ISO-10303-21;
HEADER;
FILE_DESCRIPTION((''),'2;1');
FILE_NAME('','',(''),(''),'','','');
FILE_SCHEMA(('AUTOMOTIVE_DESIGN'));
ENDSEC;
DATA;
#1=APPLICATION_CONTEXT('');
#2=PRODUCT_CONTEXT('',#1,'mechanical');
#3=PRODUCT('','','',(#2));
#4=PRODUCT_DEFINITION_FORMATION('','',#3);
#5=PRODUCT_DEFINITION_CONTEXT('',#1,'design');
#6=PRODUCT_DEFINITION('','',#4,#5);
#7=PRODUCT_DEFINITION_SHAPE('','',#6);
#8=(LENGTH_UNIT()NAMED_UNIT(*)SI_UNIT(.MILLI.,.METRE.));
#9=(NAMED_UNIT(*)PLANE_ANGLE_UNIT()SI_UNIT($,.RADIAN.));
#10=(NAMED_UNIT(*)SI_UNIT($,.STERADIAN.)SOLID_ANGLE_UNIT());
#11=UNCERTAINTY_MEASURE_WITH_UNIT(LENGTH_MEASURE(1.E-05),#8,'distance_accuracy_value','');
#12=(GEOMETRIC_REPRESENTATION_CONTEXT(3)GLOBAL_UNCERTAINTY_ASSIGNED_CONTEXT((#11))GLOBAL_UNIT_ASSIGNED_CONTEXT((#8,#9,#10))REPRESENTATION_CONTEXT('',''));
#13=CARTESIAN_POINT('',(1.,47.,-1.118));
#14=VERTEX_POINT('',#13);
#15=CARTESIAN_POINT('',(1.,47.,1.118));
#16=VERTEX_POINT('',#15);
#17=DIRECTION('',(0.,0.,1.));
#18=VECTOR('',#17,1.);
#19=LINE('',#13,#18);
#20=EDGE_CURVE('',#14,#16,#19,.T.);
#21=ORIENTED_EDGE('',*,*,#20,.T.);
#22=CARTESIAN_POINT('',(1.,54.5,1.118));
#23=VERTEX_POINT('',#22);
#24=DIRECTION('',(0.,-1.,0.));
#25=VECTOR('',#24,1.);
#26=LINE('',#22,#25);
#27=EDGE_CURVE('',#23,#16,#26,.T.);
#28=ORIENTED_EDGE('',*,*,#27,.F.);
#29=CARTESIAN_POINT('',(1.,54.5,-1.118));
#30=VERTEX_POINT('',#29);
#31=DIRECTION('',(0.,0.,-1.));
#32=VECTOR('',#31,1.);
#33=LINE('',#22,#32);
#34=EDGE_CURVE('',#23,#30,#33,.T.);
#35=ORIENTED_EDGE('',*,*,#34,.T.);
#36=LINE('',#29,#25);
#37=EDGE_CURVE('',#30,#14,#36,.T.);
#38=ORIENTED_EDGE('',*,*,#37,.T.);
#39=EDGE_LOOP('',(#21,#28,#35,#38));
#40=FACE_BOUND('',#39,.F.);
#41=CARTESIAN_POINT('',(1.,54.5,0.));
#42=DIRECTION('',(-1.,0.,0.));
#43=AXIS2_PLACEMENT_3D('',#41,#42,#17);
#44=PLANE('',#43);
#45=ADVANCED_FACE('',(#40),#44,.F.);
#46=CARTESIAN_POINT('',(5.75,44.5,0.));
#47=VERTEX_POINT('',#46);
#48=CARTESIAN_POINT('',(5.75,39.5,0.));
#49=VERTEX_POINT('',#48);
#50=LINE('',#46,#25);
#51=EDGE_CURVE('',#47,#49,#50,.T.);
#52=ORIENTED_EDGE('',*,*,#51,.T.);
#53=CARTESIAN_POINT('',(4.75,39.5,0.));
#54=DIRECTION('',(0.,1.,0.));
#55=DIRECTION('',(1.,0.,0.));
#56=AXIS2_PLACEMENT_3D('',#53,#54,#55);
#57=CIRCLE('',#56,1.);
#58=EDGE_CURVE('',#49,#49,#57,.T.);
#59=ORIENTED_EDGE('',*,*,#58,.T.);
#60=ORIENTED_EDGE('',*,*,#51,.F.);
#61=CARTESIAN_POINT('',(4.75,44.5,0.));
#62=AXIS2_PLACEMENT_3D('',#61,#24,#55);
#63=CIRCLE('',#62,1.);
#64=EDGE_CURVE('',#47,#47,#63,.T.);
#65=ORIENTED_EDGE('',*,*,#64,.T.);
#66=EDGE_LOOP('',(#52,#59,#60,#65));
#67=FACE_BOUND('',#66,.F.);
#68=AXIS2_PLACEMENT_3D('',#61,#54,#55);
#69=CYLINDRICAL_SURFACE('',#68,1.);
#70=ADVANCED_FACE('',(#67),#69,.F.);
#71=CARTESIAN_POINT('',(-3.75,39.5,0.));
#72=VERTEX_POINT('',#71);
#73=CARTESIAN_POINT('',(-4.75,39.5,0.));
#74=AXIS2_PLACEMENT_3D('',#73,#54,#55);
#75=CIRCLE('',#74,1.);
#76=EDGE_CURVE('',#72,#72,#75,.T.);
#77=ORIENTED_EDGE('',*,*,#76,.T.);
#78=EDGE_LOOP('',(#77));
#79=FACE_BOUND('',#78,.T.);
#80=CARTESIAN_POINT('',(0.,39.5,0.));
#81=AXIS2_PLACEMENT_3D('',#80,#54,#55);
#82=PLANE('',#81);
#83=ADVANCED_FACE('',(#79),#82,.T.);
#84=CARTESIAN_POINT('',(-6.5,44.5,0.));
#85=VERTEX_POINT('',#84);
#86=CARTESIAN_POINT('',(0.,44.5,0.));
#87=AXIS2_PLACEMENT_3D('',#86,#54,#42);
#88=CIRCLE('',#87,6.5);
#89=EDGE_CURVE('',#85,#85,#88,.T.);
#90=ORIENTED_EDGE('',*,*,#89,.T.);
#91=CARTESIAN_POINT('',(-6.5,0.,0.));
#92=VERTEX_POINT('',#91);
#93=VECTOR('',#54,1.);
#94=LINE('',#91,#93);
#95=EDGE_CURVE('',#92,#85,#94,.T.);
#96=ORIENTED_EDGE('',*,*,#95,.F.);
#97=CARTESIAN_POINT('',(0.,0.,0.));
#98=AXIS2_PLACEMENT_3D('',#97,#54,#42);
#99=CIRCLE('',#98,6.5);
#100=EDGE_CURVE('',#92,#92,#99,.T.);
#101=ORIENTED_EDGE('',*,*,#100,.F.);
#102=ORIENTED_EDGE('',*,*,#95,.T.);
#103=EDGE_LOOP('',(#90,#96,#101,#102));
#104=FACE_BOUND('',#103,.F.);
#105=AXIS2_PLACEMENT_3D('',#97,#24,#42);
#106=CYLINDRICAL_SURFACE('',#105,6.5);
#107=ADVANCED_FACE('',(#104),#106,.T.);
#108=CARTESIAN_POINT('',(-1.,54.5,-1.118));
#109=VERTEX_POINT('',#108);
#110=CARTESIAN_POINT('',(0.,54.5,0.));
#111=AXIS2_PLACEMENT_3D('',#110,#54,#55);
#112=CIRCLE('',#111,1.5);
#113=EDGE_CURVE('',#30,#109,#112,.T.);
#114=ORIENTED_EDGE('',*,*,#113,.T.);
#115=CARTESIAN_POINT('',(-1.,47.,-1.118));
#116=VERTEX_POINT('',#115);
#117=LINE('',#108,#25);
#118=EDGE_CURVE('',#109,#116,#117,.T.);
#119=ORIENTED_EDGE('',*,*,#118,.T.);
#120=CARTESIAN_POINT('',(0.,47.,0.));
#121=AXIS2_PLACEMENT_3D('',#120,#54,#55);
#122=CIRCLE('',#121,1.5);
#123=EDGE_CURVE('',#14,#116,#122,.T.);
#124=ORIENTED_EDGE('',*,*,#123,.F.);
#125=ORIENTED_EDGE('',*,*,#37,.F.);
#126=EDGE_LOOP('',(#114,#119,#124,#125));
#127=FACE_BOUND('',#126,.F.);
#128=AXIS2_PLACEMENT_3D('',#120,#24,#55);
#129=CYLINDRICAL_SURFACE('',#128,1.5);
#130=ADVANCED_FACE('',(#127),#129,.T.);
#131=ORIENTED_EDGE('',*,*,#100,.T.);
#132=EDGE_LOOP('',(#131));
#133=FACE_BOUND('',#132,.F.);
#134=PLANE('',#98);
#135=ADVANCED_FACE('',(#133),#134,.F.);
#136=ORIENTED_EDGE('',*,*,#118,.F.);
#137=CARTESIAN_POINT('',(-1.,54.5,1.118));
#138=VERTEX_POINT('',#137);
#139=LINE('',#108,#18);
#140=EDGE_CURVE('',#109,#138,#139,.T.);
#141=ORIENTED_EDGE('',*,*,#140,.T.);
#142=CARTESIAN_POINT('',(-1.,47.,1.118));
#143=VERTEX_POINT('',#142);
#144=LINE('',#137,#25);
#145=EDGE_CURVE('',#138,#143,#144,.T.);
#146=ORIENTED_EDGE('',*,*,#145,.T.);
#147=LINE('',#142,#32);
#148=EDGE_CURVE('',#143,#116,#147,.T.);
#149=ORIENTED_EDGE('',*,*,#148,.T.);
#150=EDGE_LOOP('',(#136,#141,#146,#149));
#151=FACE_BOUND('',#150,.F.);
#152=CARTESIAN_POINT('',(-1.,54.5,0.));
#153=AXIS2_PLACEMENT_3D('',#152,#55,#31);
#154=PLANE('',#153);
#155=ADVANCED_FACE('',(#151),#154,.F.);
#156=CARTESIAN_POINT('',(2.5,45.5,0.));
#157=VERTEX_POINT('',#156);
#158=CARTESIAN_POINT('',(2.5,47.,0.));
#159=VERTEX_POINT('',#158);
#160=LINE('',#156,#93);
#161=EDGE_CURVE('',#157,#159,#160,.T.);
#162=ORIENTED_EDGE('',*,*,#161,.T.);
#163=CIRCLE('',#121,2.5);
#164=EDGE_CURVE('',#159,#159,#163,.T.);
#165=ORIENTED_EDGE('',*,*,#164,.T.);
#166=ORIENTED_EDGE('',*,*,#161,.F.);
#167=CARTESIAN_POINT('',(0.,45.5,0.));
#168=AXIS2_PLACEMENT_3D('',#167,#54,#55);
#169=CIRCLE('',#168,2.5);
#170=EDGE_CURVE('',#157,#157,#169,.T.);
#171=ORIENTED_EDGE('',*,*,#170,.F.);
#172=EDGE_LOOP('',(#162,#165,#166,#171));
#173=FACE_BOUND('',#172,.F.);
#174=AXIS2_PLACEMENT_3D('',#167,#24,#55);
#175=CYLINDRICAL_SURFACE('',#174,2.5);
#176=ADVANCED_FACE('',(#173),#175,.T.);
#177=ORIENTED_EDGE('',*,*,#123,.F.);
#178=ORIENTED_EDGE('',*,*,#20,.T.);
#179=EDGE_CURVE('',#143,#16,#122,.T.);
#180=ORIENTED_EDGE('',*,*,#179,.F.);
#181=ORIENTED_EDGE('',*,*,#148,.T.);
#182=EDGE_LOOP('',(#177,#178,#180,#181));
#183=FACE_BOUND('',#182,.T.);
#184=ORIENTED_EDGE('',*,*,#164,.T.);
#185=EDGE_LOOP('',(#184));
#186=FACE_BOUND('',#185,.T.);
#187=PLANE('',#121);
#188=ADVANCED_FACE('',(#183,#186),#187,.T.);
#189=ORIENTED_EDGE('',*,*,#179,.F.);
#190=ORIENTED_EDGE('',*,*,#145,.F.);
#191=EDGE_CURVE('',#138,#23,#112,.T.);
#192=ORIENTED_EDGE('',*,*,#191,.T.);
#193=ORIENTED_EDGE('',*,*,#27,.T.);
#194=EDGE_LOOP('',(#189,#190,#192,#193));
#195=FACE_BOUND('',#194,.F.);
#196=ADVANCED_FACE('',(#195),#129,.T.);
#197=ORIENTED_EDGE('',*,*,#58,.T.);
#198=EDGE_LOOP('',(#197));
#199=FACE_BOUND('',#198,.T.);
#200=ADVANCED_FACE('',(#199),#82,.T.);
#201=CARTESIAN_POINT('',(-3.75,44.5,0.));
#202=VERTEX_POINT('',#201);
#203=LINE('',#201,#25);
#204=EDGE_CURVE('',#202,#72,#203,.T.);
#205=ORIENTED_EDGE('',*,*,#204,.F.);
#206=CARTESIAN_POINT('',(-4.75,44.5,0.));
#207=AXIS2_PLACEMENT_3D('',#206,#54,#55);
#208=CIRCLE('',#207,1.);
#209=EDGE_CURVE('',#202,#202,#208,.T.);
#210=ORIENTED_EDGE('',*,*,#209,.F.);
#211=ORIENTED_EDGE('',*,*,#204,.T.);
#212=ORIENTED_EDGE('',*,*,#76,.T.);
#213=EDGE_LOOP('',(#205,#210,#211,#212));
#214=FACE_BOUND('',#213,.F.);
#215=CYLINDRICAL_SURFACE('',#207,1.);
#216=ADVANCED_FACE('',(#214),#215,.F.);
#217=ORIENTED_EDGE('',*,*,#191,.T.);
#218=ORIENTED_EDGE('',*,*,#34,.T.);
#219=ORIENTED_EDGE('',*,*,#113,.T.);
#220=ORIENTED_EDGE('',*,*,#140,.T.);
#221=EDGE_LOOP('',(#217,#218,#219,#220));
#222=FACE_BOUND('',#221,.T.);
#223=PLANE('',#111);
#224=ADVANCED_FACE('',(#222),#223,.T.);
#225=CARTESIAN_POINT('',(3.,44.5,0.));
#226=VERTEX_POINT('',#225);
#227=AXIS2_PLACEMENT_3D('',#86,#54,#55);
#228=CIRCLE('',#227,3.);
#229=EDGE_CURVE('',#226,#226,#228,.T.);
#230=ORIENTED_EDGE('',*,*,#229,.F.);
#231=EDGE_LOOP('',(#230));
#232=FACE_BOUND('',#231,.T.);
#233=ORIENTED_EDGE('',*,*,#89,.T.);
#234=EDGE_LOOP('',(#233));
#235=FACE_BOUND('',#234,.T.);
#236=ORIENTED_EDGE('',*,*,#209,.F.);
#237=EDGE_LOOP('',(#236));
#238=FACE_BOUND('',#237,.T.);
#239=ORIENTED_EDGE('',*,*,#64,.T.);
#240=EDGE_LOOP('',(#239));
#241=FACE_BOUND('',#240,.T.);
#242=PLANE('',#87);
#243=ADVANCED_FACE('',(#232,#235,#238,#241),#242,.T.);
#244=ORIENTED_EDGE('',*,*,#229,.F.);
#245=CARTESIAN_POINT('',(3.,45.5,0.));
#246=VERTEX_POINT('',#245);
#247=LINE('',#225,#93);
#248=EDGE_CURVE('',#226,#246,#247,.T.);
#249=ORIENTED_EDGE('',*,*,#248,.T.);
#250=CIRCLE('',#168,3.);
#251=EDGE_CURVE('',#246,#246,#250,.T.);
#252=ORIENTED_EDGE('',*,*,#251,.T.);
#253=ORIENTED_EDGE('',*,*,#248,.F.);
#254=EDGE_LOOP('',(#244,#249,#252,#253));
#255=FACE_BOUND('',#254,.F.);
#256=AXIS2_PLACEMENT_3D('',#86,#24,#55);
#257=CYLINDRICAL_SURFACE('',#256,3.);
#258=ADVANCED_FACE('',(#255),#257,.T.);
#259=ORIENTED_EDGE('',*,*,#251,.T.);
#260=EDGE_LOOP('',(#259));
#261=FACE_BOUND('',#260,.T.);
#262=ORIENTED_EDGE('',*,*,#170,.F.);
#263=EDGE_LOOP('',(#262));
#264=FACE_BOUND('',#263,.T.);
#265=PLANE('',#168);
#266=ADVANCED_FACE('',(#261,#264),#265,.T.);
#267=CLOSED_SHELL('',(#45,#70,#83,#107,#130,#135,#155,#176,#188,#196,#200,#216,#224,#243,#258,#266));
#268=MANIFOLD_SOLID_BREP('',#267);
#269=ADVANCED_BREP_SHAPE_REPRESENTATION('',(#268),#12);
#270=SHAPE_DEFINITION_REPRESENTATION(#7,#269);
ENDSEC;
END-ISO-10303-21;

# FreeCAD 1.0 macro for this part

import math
import FreeCAD as App
import Part
import Sketcher

doc = App.newDocument("Part")
body = doc.addObject("PartDesign::Body", "Body")

sketch1 = body.newObject("Sketcher::SketchObject", "Sketch")
sketch1.AttachmentSupport = (doc.getObject("XZ_Plane"), [""])
sketch1.MapMode = "FlatFace"
sketch1.addGeometry(Part.Circle(App.Vector(0, 0, 0), App.Vector(0, 0, 1), 6), False)
sketch1.addConstraint([
    Sketcher.Constraint("Coincident", 0, 3, -1, 1),
    Sketcher.Constraint("Diameter", 0, 13.0),
])
pad1 = body.newObject("PartDesign::Pad", "Pad")
pad1.Profile = sketch1
pad1.Length = 44.5
pad1.Reversed = True

sketch2 = body.newObject("Sketcher::SketchObject", "Sketch001")
sketch2.AttachmentSupport = (doc.getObject("XZ_Plane"), [""])
sketch2.MapMode = "FlatFace"
sketch2.AttachmentOffset = App.Placement(App.Vector(0, 0, -44.5), App.Rotation())
sketch2.addGeometry(Part.Circle(App.Vector(0, 0, 0), App.Vector(0, 0, 1), 3), False)
sketch2.addConstraint([
    Sketcher.Constraint("Coincident", 0, 3, -1, 1),
    Sketcher.Constraint("Diameter", 0, 6.0),
])
pad2 = body.newObject("PartDesign::Pad", "Pad001")
pad2.Profile = sketch2
pad2.Length = 1
pad2.Reversed = True

sketch3 = body.newObject("Sketcher::SketchObject", "Sketch002")
sketch3.AttachmentSupport = (doc.getObject("XZ_Plane"), [""])
sketch3.MapMode = "FlatFace"
sketch3.AttachmentOffset = App.Placement(App.Vector(0, 0, -45.5), App.Rotation())
sketch3.addGeometry(Part.Circle(App.Vector(0, 0, 0), App.Vector(0, 0, 1), 2.5), False)
sketch3.addConstraint([
    Sketcher.Constraint("Coincident", 0, 3, -1, 1),
    Sketcher.Constraint("Diameter", 0, 5.0),
])
pad3 = body.newObject("PartDesign::Pad", "Pad002")
pad3.Profile = sketch3
pad3.Length = 1.5
pad3.Reversed = True

sketch4 = body.newObject("Sketcher::SketchObject", "Sketch003")
sketch4.AttachmentSupport = (doc.getObject("XZ_Plane"), [""])
sketch4.MapMode = "FlatFace"
sketch4.AttachmentOffset = App.Placement(App.Vector(0, 0, -47), App.Rotation())
sketch4.addGeometry(Part.Circle(App.Vector(0, 0, 0), App.Vector(0, 0, 1), 1.5), False)
sketch4.addConstraint([
    Sketcher.Constraint("Coincident", 0, 3, -1, 1),
    Sketcher.Constraint("Diameter", 0, 3.0),
])
pad4 = body.newObject("PartDesign::Pad", "Pad003")
pad4.Profile = sketch4
pad4.Length = 7.5
pad4.Reversed = True

sketch5 = body.newObject("Sketcher::SketchObject", "Sketch004")
sketch5.AttachmentSupport = (doc.getObject("XZ_Plane"), [""])
sketch5.MapMode = "FlatFace"
sketch5.AttachmentOffset = App.Placement(App.Vector(0, 0, -54.5), App.Rotation())
sketch5.addGeometry([
    Part.ArcOfCircle(Part.Circle(App.Vector(0, 0, 0), App.Vector(0, 0, 1), 1.5), math.radians(-48), math.radians(48)),
    Part.LineSegment(App.Vector(1, 1.1, 0), App.Vector(1, -1.1, 0)),
    Part.LineSegment(App.Vector(-1, 1.1, 0), App.Vector(-1, -1.1, 0)),
    Part.ArcOfCircle(Part.Circle(App.Vector(0, 0, 0), App.Vector(0, 0, 1), 1.5), math.radians(132), math.radians(228)),
], False)
sketch5.addConstraint([
    Sketcher.Constraint("Coincident", 0, 1, 1, 2),
    Sketcher.Constraint("Coincident", 1, 1, 0, 2),
    Sketcher.Constraint("Coincident", 2, 1, 3, 1),
    Sketcher.Constraint("Coincident", 3, 2, 2, 2),
    Sketcher.Constraint("Vertical", 1),
    Sketcher.Constraint("Vertical", 2),
    Sketcher.Constraint("Coincident", 0, 3, -1, 1),
    Sketcher.Constraint("Coincident", 3, 3, -1, 1),
    Sketcher.Constraint("Equal", 0, 3),
    Sketcher.Constraint("Horizontal", 1, 1, 2, 1),
    Sketcher.Constraint("Radius", 0, 1.5),
    Sketcher.Constraint("DistanceX", -1, 1, 0, 1, 1.0),
])
pocket1 = body.newObject("PartDesign::Pocket", "Pocket")
pocket1.Profile = sketch5
pocket1.Length = 7.5
pocket1.Reversed = True

sketch6 = body.newObject("Sketcher::SketchObject", "Sketch005")
sketch6.AttachmentSupport = (doc.getObject("XZ_Plane"), [""])
sketch6.MapMode = "FlatFace"
sketch6.AttachmentOffset = App.Placement(App.Vector(0, 0, -44.5), App.Rotation())
sketch6.addGeometry([
    Part.Circle(App.Vector(-4.8, 0, 0), App.Vector(0, 0, 1), 1),
    Part.Circle(App.Vector(4.8, 0, 0), App.Vector(0, 0, 1), 1),
], False)
sketch6.addConstraint([
    Sketcher.Constraint("Equal", 0, 1),
    Sketcher.Constraint("Symmetric", 0, 3, 1, 3, -1, 1),
    Sketcher.Constraint("PointOnObject", 0, 3, -1),
    Sketcher.Constraint("Diameter", 0, 2.0),
    Sketcher.Constraint("DistanceX", 0, 3, -1, 1, 4.75),
])
pocket2 = body.newObject("PartDesign::Pocket", "Pocket001")
pocket2.Profile = sketch6
pocket2.Length = 5
pocket2.Reversed = True

doc.recompute()
